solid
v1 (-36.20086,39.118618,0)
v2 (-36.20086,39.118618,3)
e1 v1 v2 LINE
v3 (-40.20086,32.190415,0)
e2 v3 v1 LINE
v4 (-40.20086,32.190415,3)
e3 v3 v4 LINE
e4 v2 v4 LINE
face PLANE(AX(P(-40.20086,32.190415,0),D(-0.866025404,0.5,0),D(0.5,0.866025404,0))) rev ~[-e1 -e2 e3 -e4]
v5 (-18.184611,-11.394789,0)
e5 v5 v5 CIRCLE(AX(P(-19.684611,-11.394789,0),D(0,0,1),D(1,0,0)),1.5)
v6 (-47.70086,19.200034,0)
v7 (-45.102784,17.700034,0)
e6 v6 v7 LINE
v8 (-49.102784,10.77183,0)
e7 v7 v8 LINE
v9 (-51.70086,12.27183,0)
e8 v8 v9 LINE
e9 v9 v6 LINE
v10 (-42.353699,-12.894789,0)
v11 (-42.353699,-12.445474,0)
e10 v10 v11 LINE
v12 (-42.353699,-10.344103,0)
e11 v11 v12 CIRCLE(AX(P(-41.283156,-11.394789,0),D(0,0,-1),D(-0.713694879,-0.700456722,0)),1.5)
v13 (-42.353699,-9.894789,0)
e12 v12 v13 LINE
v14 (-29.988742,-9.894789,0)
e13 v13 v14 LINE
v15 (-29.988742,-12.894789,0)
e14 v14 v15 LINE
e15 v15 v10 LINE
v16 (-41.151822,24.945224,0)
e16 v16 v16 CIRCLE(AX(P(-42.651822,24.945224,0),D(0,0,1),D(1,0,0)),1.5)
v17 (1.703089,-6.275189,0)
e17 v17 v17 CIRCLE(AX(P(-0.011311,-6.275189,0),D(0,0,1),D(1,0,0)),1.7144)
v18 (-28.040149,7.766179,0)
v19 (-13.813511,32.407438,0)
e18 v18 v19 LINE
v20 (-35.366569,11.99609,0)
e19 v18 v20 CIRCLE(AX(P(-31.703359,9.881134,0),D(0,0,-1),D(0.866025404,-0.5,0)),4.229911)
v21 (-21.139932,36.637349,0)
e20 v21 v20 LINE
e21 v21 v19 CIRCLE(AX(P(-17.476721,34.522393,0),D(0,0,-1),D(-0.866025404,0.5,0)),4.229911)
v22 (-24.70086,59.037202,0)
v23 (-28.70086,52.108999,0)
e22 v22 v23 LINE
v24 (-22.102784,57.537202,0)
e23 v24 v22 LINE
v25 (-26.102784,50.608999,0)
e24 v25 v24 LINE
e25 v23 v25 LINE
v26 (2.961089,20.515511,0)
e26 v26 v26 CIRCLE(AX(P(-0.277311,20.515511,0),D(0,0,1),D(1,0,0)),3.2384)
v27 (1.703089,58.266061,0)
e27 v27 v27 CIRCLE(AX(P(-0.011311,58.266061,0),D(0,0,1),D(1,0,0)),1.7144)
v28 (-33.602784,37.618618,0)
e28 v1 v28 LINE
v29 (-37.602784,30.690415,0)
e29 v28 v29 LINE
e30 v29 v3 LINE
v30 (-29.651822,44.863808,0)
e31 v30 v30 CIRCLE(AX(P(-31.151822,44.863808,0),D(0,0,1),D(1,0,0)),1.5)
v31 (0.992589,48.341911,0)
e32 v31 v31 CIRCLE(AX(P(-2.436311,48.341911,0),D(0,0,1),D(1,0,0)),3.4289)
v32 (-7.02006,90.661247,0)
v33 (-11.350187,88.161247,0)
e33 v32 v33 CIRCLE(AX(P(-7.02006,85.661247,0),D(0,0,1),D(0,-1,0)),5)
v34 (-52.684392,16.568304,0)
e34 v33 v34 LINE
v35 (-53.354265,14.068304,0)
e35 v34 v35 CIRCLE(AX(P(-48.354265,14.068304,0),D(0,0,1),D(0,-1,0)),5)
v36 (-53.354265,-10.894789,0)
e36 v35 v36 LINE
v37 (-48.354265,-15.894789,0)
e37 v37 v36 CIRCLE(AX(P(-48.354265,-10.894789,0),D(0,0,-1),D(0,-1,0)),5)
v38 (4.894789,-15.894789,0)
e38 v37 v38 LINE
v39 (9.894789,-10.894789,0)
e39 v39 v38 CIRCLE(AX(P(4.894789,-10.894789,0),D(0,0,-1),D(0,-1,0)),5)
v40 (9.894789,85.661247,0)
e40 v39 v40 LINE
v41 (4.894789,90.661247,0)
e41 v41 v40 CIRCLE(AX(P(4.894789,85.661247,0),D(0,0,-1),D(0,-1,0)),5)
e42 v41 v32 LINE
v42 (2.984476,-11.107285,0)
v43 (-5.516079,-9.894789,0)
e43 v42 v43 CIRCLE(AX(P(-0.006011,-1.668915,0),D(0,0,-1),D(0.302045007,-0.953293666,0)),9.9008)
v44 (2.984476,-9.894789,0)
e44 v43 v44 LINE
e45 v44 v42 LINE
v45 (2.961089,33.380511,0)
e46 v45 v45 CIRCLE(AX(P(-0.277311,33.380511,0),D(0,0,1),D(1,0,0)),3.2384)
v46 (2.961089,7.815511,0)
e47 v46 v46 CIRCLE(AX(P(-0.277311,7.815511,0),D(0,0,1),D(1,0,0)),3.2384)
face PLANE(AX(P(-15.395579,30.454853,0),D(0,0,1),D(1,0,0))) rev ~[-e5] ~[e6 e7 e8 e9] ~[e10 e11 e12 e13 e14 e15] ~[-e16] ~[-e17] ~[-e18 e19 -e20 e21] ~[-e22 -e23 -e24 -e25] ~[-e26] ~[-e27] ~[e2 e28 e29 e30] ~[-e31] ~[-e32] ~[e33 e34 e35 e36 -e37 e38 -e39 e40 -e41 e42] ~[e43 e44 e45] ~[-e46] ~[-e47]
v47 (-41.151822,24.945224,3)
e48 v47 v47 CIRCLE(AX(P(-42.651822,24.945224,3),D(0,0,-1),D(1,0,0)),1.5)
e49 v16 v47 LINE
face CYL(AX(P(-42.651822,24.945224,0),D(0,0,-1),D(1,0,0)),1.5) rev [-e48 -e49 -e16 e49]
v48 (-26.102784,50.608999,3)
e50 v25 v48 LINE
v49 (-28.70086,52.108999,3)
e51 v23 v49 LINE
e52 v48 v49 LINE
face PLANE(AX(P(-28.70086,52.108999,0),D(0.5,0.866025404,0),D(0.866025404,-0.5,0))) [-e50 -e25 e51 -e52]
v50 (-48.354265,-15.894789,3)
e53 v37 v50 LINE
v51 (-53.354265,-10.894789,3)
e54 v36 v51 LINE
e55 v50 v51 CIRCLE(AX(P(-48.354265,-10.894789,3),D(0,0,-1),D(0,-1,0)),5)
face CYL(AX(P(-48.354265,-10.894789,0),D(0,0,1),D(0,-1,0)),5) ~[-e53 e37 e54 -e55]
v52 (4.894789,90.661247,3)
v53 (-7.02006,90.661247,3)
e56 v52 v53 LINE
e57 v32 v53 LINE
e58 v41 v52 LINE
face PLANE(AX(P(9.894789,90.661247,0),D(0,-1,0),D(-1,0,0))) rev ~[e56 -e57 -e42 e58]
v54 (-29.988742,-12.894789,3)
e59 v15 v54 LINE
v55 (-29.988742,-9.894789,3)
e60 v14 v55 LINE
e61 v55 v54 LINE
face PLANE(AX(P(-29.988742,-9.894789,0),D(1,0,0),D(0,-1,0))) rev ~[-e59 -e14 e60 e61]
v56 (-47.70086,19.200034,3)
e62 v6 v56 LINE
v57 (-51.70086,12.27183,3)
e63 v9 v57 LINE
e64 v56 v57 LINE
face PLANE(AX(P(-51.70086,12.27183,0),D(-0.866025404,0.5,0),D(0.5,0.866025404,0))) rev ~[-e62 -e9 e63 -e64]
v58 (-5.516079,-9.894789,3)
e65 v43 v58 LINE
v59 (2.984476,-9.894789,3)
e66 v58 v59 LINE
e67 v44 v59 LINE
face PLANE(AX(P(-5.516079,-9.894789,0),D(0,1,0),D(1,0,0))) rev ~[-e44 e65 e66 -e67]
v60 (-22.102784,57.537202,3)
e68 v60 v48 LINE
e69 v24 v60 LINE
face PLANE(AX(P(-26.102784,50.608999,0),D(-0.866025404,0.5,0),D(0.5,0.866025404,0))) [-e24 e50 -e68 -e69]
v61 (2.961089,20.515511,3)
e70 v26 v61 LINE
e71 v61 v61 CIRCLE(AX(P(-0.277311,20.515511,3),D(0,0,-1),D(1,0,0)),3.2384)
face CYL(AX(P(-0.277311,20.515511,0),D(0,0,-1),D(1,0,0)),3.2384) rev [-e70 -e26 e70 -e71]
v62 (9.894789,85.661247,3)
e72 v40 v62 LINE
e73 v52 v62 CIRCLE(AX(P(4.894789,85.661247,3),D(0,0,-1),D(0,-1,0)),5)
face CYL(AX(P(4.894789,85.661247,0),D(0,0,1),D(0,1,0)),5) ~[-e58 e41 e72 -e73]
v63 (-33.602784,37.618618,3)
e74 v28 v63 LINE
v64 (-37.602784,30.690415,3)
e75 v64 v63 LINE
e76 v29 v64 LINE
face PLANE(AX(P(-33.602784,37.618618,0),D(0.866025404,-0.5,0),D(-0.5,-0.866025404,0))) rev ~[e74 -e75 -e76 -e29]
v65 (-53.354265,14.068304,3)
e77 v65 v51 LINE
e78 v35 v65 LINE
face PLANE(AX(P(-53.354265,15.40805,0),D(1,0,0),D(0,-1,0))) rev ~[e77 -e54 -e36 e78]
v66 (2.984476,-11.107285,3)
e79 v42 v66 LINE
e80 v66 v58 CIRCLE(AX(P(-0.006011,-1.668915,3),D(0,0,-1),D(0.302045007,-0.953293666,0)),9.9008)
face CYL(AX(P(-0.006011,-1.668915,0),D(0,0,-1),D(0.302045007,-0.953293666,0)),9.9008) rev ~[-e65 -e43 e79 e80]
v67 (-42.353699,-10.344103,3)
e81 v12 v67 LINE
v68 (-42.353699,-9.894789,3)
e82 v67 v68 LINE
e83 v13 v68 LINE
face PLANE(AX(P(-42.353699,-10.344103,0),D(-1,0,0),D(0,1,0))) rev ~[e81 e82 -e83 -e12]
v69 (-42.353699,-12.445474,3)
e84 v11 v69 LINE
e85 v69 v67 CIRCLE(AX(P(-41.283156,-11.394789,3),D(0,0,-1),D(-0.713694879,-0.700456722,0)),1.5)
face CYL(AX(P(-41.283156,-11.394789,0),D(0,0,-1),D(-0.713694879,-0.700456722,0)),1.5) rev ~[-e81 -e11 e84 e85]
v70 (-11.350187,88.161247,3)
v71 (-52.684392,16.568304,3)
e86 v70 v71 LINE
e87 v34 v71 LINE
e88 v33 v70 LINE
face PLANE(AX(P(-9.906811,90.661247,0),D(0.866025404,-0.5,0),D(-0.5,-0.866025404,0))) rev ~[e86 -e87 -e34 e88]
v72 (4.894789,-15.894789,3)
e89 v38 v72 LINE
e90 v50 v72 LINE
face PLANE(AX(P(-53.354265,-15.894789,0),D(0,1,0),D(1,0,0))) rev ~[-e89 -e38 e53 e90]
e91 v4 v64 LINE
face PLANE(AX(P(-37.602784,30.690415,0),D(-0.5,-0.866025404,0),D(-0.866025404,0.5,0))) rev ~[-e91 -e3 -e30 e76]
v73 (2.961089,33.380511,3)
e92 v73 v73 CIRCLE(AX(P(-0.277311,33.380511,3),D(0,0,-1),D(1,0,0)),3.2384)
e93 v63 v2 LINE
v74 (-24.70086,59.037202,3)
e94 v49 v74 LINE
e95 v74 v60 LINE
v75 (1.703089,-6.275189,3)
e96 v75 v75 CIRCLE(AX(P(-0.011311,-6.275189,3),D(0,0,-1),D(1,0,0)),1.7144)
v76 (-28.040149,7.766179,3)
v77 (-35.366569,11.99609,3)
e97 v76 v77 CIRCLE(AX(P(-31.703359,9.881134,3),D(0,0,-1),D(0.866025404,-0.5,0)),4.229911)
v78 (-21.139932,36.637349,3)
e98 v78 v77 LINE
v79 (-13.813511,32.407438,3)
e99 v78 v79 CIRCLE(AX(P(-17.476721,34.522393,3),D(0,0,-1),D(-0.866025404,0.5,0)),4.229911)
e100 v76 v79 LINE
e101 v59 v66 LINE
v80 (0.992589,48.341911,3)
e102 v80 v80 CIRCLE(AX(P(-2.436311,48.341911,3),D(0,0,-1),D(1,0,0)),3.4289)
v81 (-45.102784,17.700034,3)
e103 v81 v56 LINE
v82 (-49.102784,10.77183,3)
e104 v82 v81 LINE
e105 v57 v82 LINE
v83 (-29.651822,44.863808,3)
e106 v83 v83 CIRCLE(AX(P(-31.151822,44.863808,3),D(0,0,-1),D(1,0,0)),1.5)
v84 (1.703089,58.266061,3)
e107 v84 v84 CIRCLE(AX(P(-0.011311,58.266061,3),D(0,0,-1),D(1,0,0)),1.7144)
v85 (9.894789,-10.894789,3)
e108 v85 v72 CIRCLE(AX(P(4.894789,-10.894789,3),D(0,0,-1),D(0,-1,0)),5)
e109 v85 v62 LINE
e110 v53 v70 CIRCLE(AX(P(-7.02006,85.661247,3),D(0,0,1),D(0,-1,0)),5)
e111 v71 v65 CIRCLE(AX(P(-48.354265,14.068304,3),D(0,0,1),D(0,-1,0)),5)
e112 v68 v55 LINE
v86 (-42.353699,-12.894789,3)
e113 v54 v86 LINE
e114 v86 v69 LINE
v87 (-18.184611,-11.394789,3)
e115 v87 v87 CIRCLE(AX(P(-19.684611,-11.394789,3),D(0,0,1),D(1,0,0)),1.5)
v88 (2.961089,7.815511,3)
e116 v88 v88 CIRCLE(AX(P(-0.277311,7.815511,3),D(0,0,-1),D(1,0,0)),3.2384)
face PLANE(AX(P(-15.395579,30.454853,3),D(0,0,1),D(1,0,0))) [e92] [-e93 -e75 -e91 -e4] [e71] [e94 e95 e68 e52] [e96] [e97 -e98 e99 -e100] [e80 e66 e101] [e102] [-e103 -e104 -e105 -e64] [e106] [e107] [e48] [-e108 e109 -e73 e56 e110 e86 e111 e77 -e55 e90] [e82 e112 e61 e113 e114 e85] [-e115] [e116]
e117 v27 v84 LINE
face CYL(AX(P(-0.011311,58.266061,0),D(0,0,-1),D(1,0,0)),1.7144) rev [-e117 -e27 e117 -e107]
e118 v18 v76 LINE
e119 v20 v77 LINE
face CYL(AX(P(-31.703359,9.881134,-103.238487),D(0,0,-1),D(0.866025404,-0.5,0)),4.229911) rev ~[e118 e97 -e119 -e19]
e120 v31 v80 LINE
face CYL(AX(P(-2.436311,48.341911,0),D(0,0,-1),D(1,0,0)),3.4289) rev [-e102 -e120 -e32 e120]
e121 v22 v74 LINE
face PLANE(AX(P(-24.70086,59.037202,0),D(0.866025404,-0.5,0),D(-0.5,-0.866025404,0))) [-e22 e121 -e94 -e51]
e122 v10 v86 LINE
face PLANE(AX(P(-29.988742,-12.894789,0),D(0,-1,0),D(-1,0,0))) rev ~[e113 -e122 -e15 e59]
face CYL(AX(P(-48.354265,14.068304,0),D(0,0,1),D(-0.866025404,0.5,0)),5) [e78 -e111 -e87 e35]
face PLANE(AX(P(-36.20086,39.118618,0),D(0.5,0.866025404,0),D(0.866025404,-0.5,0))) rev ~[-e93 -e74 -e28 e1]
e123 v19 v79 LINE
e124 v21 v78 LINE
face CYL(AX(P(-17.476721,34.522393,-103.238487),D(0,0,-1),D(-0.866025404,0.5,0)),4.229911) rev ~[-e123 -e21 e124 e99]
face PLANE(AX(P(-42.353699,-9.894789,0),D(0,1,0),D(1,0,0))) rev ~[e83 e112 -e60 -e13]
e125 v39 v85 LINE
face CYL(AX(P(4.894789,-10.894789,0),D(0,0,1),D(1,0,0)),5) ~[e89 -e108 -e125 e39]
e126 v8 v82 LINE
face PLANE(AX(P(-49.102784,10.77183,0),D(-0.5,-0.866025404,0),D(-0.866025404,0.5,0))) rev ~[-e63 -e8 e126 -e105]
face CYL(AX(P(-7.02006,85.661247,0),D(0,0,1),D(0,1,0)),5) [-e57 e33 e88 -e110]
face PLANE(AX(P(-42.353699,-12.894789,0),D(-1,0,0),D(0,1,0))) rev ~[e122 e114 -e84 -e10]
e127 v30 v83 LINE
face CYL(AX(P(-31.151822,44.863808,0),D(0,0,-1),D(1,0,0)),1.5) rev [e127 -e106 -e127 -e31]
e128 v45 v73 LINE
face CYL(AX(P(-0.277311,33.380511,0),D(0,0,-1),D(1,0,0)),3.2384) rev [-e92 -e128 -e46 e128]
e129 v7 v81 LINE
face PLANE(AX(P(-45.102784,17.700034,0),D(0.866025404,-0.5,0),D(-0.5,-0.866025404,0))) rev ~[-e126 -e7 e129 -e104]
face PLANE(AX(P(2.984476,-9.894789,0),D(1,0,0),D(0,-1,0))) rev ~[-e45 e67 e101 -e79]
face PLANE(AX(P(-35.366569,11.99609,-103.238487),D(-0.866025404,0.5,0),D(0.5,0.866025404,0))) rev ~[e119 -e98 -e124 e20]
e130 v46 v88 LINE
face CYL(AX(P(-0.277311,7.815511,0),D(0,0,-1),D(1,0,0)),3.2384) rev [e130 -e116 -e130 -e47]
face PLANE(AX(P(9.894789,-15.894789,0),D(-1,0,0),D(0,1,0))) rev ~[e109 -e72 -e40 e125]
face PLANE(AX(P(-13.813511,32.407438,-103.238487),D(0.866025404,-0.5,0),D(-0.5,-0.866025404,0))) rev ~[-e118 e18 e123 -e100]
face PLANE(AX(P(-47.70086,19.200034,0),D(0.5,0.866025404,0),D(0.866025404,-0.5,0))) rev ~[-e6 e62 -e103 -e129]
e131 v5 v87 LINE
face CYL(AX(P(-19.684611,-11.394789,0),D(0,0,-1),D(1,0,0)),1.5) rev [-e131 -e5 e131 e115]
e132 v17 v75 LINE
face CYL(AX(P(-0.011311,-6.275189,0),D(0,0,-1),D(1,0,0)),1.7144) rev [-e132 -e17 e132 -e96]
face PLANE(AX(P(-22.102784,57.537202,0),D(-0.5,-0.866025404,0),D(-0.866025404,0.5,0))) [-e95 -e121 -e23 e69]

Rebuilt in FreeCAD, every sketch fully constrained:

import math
import FreeCAD as App
import Part
import Sketcher

V = App.Vector
Q = App.Units.Quantity


def edges_at(feature, points):
    """Names of the edges that pass closest to the given points."""
    edges = feature.Shape.Edges
    near = lambda p: min(range(len(edges)), key=lambda i: edges[i].distToShape(Part.Vertex(*p))[0])
    return sorted({f"Edge{near(p) + 1}" for p in points})

doc = App.newDocument("Part")
body = doc.addObject("PartDesign::Body", "Body")

# Sketch on XY plane
sketch1 = body.newObject("Sketcher::SketchObject", "Sketch")
sketch1.AttachmentSupport = (doc.getObject("XY_Plane"), [""])
sketch1.MapMode = "FlatFace"
sketch1.addGeometry([
    Part.LineSegment(V(9.89, 90.66, 0), V(-9.91, 90.66, 0)),  # 0
    Part.LineSegment(V(-9.91, 90.66, 0), V(-53.35, 15.41, 0)),  # 1
    Part.LineSegment(V(-53.35, 15.41, 0), V(-53.35, -15.89, 0)),  # 2
    Part.LineSegment(V(-53.35, -15.89, 0), V(9.89, -15.89, 0)),  # 3
    Part.LineSegment(V(9.89, -15.89, 0), V(9.89, 90.66, 0)),  # 4
    Part.ArcOfCircle(Part.Circle(V(-41.28, -11.39, 0), V(0, 0, 1), 1.5), math.radians(136), math.radians(224)),  # 5
    Part.LineSegment(V(-42.35, -10.34, 0), V(-42.35, -9.89, 0)),  # 6
    Part.LineSegment(V(-42.35, -9.89, 0), V(-29.99, -9.89, 0)),  # 7
    Part.LineSegment(V(-29.99, -9.89, 0), V(-29.99, -12.89, 0)),  # 8
    Part.LineSegment(V(-29.99, -12.89, 0), V(-42.35, -12.89, 0)),  # 9
    Part.LineSegment(V(-42.35, -12.89, 0), V(-42.35, -12.45, 0)),  # 10
    Part.Circle(V(-19.68, -11.39, 0), V(0, 0, 1), 1.5),  # 11
    Part.LineSegment(V(-5.52, -9.89, 0), V(2.98, -9.89, 0)),  # 12
    Part.LineSegment(V(2.98, -9.89, 0), V(2.98, -11.11, 0)),  # 13
    Part.ArcOfCircle(Part.Circle(V(-0.01, -1.67, 0), V(0, 0, 1), 9.9), math.radians(-124), math.radians(-72)),  # 14
], False)
sketch1.addConstraint([
    Sketcher.Constraint("Coincident", 0, 2, 1, 1),
    Sketcher.Constraint("Coincident", 1, 2, 2, 1),
    Sketcher.Constraint("Coincident", 2, 2, 3, 1),
    Sketcher.Constraint("Coincident", 3, 2, 4, 1),
    Sketcher.Constraint("Coincident", 4, 2, 0, 1),
    Sketcher.Constraint("Coincident", 5, 1, 6, 1),
    Sketcher.Constraint("Coincident", 6, 2, 7, 1),
    Sketcher.Constraint("Coincident", 7, 2, 8, 1),
    Sketcher.Constraint("Coincident", 8, 2, 9, 1),
    Sketcher.Constraint("Coincident", 9, 2, 10, 1),
    Sketcher.Constraint("Coincident", 10, 2, 5, 2),
    Sketcher.Constraint("Coincident", 12, 2, 13, 1),
    Sketcher.Constraint("Coincident", 13, 2, 14, 2),
    Sketcher.Constraint("Coincident", 14, 1, 12, 1),
    Sketcher.Constraint("Horizontal", 0),
    Sketcher.Constraint("Vertical", 2),
    Sketcher.Constraint("Horizontal", 3),
    Sketcher.Constraint("Vertical", 4),
    Sketcher.Constraint("Vertical", 6),
    Sketcher.Constraint("Horizontal", 7),
    Sketcher.Constraint("Vertical", 8),
    Sketcher.Constraint("Horizontal", 9),
    Sketcher.Constraint("Vertical", 10),
    Sketcher.Constraint("Horizontal", 12),
    Sketcher.Constraint("Vertical", 13),
    Sketcher.Constraint("Equal", 5, 11),
    Sketcher.Constraint("Horizontal", 5, 3, 11, 3),
    Sketcher.Constraint("Horizontal", 7, 2, 12, 2),
    Sketcher.Constraint("Vertical", 6, 2, 9, 2),
    Sketcher.Constraint("Equal", 6, 10),
    Sketcher.Constraint("Diameter", 11, 3.0),
    Sketcher.Constraint("DistanceY", 8, 2, 8, 1, 3.0),
    Sketcher.Constraint("Angle", 1, Q("-120 deg")),
    Sketcher.Constraint("DistanceY", 2, 2, 6, 2, 6.0),
    Sketcher.Constraint("Radius", 14, 9.9008),
    Sketcher.Constraint("DistanceX", 0, 2, 0, 1, 19.8016),
    Sketcher.Constraint("DistanceY", 2, 2, 2, 1, 31.302839),
    Sketcher.Constraint("DistanceX", 5, 1, -1, 1, 42.353699),
    Sketcher.Constraint("DistanceX", 11, 3, 14, 3, 19.6786),
    Sketcher.Constraint("DistanceX", 0, 2, 14, 3, 9.9008),
    Sketcher.Constraint("DistanceX", 3, 1, 3, 2, 63.249053),
    Sketcher.Constraint("DistanceX", 7, 1, 7, 2, 12.364957),
    Sketcher.Constraint("DistanceX", 12, 1, 12, 2, 8.500555),
    Sketcher.Constraint("DistanceY", 6, 1, 6, 2, 0.449315),
    Sketcher.Constraint("DistanceY", 13, 2, 13, 1, 1.212496),
    Sketcher.Constraint("DistanceY", 5, 3, -1, 1, 11.394789),
    Sketcher.Constraint("DistanceX", 11, 3, -1, 1, 19.684611),
])
pad1 = body.newObject("PartDesign::Pad", "Pad")
pad1.Profile = sketch1
pad1.Length = 3

# Sketch on XY plane
sketch2 = body.newObject("Sketcher::SketchObject", "Sketch001")
sketch2.AttachmentSupport = (doc.getObject("XY_Plane"), [""])
sketch2.MapMode = "FlatFace"
sketch2.addGeometry([
    Part.Circle(V(0, -6.3, 0), V(0, 0, 1), 1.7),  # 0
    Part.Circle(V(-0.3, 7.8, 0), V(0, 0, 1), 3.2),  # 1
    Part.Circle(V(-0.3, 20.5, 0), V(0, 0, 1), 3.2),  # 2
    Part.Circle(V(-0.3, 33.4, 0), V(0, 0, 1), 3.2),  # 3
    Part.Circle(V(-2.4, 48.3, 0), V(0, 0, 1), 3.4),  # 4
    Part.Circle(V(0, 58.3, 0), V(0, 0, 1), 1.7),  # 5
], False)
sketch2.addConstraint([
    Sketcher.Constraint("Equal", 1, 2),
    Sketcher.Constraint("Equal", 2, 3),
    Sketcher.Constraint("Equal", 0, 5),
    Sketcher.Constraint("Vertical", 1, 3, 2, 3),
    Sketcher.Constraint("Vertical", 2, 3, 3, 3),
    Sketcher.Constraint("Vertical", 0, 3, 5, 3),
    Sketcher.Constraint("Diameter", 0, 3.4288),
    Sketcher.Constraint("Diameter", 1, 6.4768),
    Sketcher.Constraint("Diameter", 4, 6.8578),
    Sketcher.Constraint("DistanceY", 1, 3, 2, 3, 12.7),
    Sketcher.Constraint("DistanceX", 1, 3, 0, 3, 0.266),
    Sketcher.Constraint("DistanceY", 2, 3, 3, 3, 12.865),
    Sketcher.Constraint("DistanceX", 4, 3, 3, 3, 2.159),
    Sketcher.Constraint("DistanceY", 0, 3, 1, 3, 14.0907),
    Sketcher.Constraint("DistanceY", 3, 3, 4, 3, 14.9614),
    Sketcher.Constraint("DistanceX", 0, 3, -1, 1, 0.011311),
    Sketcher.Constraint("DistanceY", 0, 3, -1, 1, 6.275189),
    Sketcher.Constraint("DistanceY", -1, 1, 5, 3, 58.266061),
])
pocket1 = body.newObject("PartDesign::Pocket", "Pocket")
pocket1.Profile = sketch2
pocket1.Type = "ThroughAll"
pocket1.Reversed = True

# Sketch on XY plane
sketch3 = body.newObject("Sketcher::SketchObject", "Sketch002")
sketch3.AttachmentSupport = (doc.getObject("XY_Plane"), [""])
sketch3.MapMode = "FlatFace"
sketch3.addGeometry([
    Part.Circle(V(-42.7, 24.9, 0), V(0, 0, 1), 1.5),  # 0
    Part.Circle(V(-31.2, 44.9, 0), V(0, 0, 1), 1.5),  # 1
    Part.LineSegment(V(-36.2, 39.1, 0), V(-40.2, 32.2, 0)),  # 2
    Part.LineSegment(V(-40.2, 32.2, 0), V(-37.6, 30.7, 0)),  # 3
    Part.LineSegment(V(-37.6, 30.7, 0), V(-33.6, 37.6, 0)),  # 4
    Part.LineSegment(V(-33.6, 37.6, 0), V(-36.2, 39.1, 0)),  # 5
    Part.LineSegment(V(-24.7, 59, 0), V(-28.7, 52.1, 0)),  # 6
    Part.LineSegment(V(-28.7, 52.1, 0), V(-26.1, 50.6, 0)),  # 7
    Part.LineSegment(V(-26.1, 50.6, 0), V(-22.1, 57.5, 0)),  # 8
    Part.LineSegment(V(-22.1, 57.5, 0), V(-24.7, 59, 0)),  # 9
    Part.LineSegment(V(-47.7, 19.2, 0), V(-51.7, 12.3, 0)),  # 10
    Part.LineSegment(V(-51.7, 12.3, 0), V(-49.1, 10.8, 0)),  # 11
    Part.LineSegment(V(-49.1, 10.8, 0), V(-45.1, 17.7, 0)),  # 12
    Part.LineSegment(V(-45.1, 17.7, 0), V(-47.7, 19.2, 0)),  # 13
], False)
sketch3.addConstraint([
    Sketcher.Constraint("Coincident", 2, 2, 3, 1),
    Sketcher.Constraint("Coincident", 3, 2, 4, 1),
    Sketcher.Constraint("Coincident", 4, 2, 5, 1),
    Sketcher.Constraint("Coincident", 5, 2, 2, 1),
    Sketcher.Constraint("Coincident", 6, 2, 7, 1),
    Sketcher.Constraint("Coincident", 7, 2, 8, 1),
    Sketcher.Constraint("Coincident", 8, 2, 9, 1),
    Sketcher.Constraint("Coincident", 9, 2, 6, 1),
    Sketcher.Constraint("Coincident", 10, 2, 11, 1),
    Sketcher.Constraint("Coincident", 11, 2, 12, 1),
    Sketcher.Constraint("Coincident", 12, 2, 13, 1),
    Sketcher.Constraint("Coincident", 13, 2, 10, 1),
    Sketcher.Constraint("Equal", 0, 1),
    Sketcher.Constraint("Perpendicular", 2, 3),
    Sketcher.Constraint("Perpendicular", 3, 4),
    Sketcher.Constraint("Perpendicular", 4, 5),
    Sketcher.Constraint("Perpendicular", 5, 6),
    Sketcher.Constraint("Perpendicular", 6, 7),
    Sketcher.Constraint("Perpendicular", 7, 8),
    Sketcher.Constraint("Perpendicular", 8, 9),
    Sketcher.Constraint("Perpendicular", 9, 10),
    Sketcher.Constraint("Perpendicular", 10, 11),
    Sketcher.Constraint("Perpendicular", 11, 12),
    Sketcher.Constraint("Perpendicular", 12, 13),
    Sketcher.Constraint("Equal", 4, 6),
    Sketcher.Constraint("Equal", 5, 7),
    Sketcher.Constraint("Equal", 8, 10),
    Sketcher.Constraint("Equal", 9, 11),
    Sketcher.Constraint("Diameter", 0, 3.0),
    Sketcher.Constraint("Angle", 2, Q("-120 deg")),
    Sketcher.Constraint("Distance", 2, 8.0),
    Sketcher.Constraint("Distance", 3, 3.0),
    Sketcher.Constraint("DistanceX", 0, 3, 1, 3, 11.5),
    Sketcher.Constraint("DistanceX", 5, 2, 6, 2, 7.5),
    Sketcher.Constraint("DistanceX", 10, 2, 2, 2, 11.5),
    Sketcher.Constraint("DistanceY", -1, 1, 6, 2, 52.108999),
    Sketcher.Constraint("DistanceY", -1, 1, 1, 3, 44.863808),
    Sketcher.Constraint("DistanceX", 2, 2, -1, 1, 40.20086),
    Sketcher.Constraint("DistanceY", -1, 1, 10, 2, 12.27183),
    Sketcher.Constraint("DistanceX", 0, 3, 2, 2, 2.450962),
    Sketcher.Constraint("DistanceY", 0, 3, 2, 2, 7.245191),
    Sketcher.Constraint("DistanceY", 4, 2, 1, 3, 7.245191),
])
pocket2 = body.newObject("PartDesign::Pocket", "Pocket001")
pocket2.Profile = sketch3
pocket2.Type = "ThroughAll"
pocket2.Reversed = True

# Sketch on XY plane
sketch4 = body.newObject("Sketcher::SketchObject", "Sketch003")
sketch4.AttachmentSupport = (doc.getObject("XY_Plane"), [""])
sketch4.MapMode = "FlatFace"
sketch4.AttachmentOffset = App.Placement(V(0, 0, 3), App.Rotation())
sketch4.addGeometry([
    Part.LineSegment(V(-21.1, 36.6, 0), V(-35.4, 12, 0)),
    Part.ArcOfCircle(Part.Circle(V(-31.7, 9.9, 0), V(0, 0, 1), 4.2), math.radians(150), math.radians(330)),
    Part.LineSegment(V(-28, 7.8, 0), V(-13.8, 32.4, 0)),
    Part.ArcOfCircle(Part.Circle(V(-17.5, 34.5, 0), V(0, 0, 1), 4.2), math.radians(-30), math.radians(150)),
], False)
sketch4.addConstraint([
    Sketcher.Constraint("Tangent", 0, 2, 1, 1),
    Sketcher.Constraint("Tangent", 1, 2, 2, 1),
    Sketcher.Constraint("Tangent", 2, 2, 3, 1),
    Sketcher.Constraint("Tangent", 3, 2, 0, 1),
    Sketcher.Constraint("Equal", 1, 3),
    Sketcher.Constraint("Angle", 0, Q("-120 deg")),
    Sketcher.Constraint("Radius", 1, 4.229911),
    Sketcher.Constraint("DistanceX", 1, 3, -1, 1, 31.703359),
    Sketcher.Constraint("DistanceX", 3, 3, -1, 1, 17.476721),
    Sketcher.Constraint("DistanceY", -1, 1, 0, 2, 11.99609),
])
pocket3 = body.newObject("PartDesign::Pocket", "Pocket002")
pocket3.Profile = sketch4
pocket3.Type = "ThroughAll"
pocket3.Midplane = True
doc.recompute()

fillet = body.newObject("PartDesign::Fillet", "Fillet")
fillet.Base = (pocket3, edges_at(pocket3, [
    (-53.354, -15.895, 1.5),
    (-53.354, 15.408, 1.5),
    (-9.907, 90.661, 1.5),
    (9.895, 90.661, 1.5),
    (9.895, -15.895, 1.5),
]))
fillet.Radius = 5

doc.recompute()
